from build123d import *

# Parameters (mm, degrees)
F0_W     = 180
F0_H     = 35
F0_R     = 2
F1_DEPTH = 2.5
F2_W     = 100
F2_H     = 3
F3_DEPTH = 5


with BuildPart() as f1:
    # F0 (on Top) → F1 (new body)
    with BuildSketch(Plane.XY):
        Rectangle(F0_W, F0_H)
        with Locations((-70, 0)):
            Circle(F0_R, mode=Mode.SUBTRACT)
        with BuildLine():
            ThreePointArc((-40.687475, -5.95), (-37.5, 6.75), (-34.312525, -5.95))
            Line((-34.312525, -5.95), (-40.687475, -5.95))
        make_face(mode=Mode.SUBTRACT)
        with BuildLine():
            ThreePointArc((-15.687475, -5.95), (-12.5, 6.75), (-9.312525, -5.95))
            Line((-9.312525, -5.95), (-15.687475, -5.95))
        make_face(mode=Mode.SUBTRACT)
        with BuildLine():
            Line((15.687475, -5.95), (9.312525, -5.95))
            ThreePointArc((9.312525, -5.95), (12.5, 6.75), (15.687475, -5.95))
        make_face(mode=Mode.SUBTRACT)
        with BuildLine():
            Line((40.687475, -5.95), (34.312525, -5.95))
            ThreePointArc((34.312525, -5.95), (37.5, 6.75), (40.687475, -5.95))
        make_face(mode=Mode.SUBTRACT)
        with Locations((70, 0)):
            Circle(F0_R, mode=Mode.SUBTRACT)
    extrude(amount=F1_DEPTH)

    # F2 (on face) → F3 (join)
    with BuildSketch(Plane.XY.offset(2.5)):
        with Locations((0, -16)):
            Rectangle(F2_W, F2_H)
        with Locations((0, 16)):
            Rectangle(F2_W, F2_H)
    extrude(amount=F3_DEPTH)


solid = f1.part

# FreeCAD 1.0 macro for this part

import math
import FreeCAD as App
import Part
import Sketcher

V = App.Vector

doc = App.newDocument("Part")
body = doc.addObject("PartDesign::Body", "Body")

# Sketch on XY plane
sketch1 = body.newObject("Sketcher::SketchObject", "Sketch")
sketch1.AttachmentSupport = (doc.getObject("XY_Plane"), [""])
sketch1.MapMode = "FlatFace"
sketch1.addGeometry([
    Part.LineSegment(V(-90, 17.5, 0), V(-90, -17.5, 0)),  # 0
    Part.LineSegment(V(-90, -17.5, 0), V(90, -17.5, 0)),  # 1
    Part.LineSegment(V(90, -17.5, 0), V(90, 17.5, 0)),  # 2
    Part.LineSegment(V(90, 17.5, 0), V(-90, 17.5, 0)),  # 3
    Part.Circle(V(-70, 0, 0), V(0, 0, 1), 2),  # 4
    Part.LineSegment(V(-34.312525, -5.95, 0), V(-40.687475, -5.95, 0)),  # 5
    Part.ArcOfCircle(Part.Circle(V(-37.5, 0, 0), V(0, 0, 1), 6.75), math.radians(-61.821597), math.radians(241.821597)),  # 6
    Part.ArcOfCircle(Part.Circle(V(37.5, 0, 0), V(0, 0, 1), 6.75), math.radians(-61.821597), math.radians(241.821597)),  # 7
    Part.LineSegment(V(40.687475, -5.95, 0), V(34.312525, -5.95, 0)),  # 8
    Part.Circle(V(70, 0, 0), V(0, 0, 1), 2),  # 9
    Part.LineSegment(V(-9.312525, -5.95, 0), V(-15.687475, -5.95, 0)),  # 10
    Part.ArcOfCircle(Part.Circle(V(-12.5, 0, 0), V(0, 0, 1), 6.75), math.radians(-61.821597), math.radians(241.821597)),  # 11
    Part.ArcOfCircle(Part.Circle(V(12.5, 0, 0), V(0, 0, 1), 6.75), math.radians(-61.821597), math.radians(241.821597)),  # 12
    Part.LineSegment(V(15.687475, -5.95, 0), V(9.312525, -5.95, 0)),  # 13
], False)
sketch1.addConstraint([
    Sketcher.Constraint("Coincident", 0, 2, 1, 1),
    Sketcher.Constraint("Coincident", 1, 2, 2, 1),
    Sketcher.Constraint("Coincident", 2, 2, 3, 1),
    Sketcher.Constraint("Coincident", 3, 2, 0, 1),
    Sketcher.Constraint("Coincident", 5, 1, 6, 1),
    Sketcher.Constraint("Coincident", 6, 2, 5, 2),
    Sketcher.Constraint("Coincident", 7, 1, 8, 1),
    Sketcher.Constraint("Coincident", 8, 2, 7, 2),
    Sketcher.Constraint("Coincident", 10, 1, 11, 1),
    Sketcher.Constraint("Coincident", 11, 2, 10, 2),
    Sketcher.Constraint("Coincident", 12, 1, 13, 1),
    Sketcher.Constraint("Coincident", 13, 2, 12, 2),
    Sketcher.Constraint("Vertical", 0),
    Sketcher.Constraint("Horizontal", 1),
    Sketcher.Constraint("Vertical", 2),
    Sketcher.Constraint("Horizontal", 3),
    Sketcher.Constraint("Horizontal", 5),
    Sketcher.Constraint("Horizontal", 8),
    Sketcher.Constraint("Horizontal", 10),
    Sketcher.Constraint("Horizontal", 13),
    Sketcher.Constraint("Equal", 6, 7),
    Sketcher.Constraint("Equal", 4, 9),
    Sketcher.Constraint("Equal", 7, 11),
    Sketcher.Constraint("Equal", 11, 12),
    Sketcher.Constraint("Symmetric", 6, 3, 7, 3, -1, 1),
    Sketcher.Constraint("Symmetric", 4, 3, 9, 3, -1, 1),
    Sketcher.Constraint("Symmetric", 11, 3, 12, 3, -1, 1),
    Sketcher.Constraint("Symmetric", 0, 2, 2, 2, -1, 1),
    Sketcher.Constraint("Symmetric", 6, 2, 7, 1, -2),
    Sketcher.Constraint("Symmetric", 11, 2, 12, 1, -2),
    Sketcher.Constraint("PointOnObject", 4, 3, -1),
    Sketcher.Constraint("Horizontal", 8, 2, 10, 1),
    Sketcher.Constraint("Diameter", 4, 4.0),
    Sketcher.Constraint("DistanceX", 1, 1, 1, 2, 180.0),
    Sketcher.Constraint("DistanceY", 0, 2, 0, 1, 35.0),
    Sketcher.Constraint("Radius", 6, 6.75),
    Sketcher.Constraint("DistanceX", 4, 3, -1, 1, 70.0),
    Sketcher.Constraint("DistanceX", 6, 3, 7, 3, 75.0),
    Sketcher.Constraint("DistanceX", 6, 3, 11, 3, 25.0),
    Sketcher.Constraint("DistanceY", 5, 1, -1, 1, 5.95),
])
pad1 = body.newObject("PartDesign::Pad", "Pad")
pad1.Profile = sketch1
pad1.Length = 2.5

# Sketch on XY plane
sketch2 = body.newObject("Sketcher::SketchObject", "Sketch001")
sketch2.AttachmentSupport = (doc.getObject("XY_Plane"), [""])
sketch2.MapMode = "FlatFace"
sketch2.AttachmentOffset = App.Placement(V(0, 0, 2.5), App.Rotation())
sketch2.addGeometry([
    Part.LineSegment(V(-50, -14.5, 0), V(-50, -17.5, 0)),  # 0
    Part.LineSegment(V(-50, -17.5, 0), V(50, -17.5, 0)),  # 1
    Part.LineSegment(V(50, -17.5, 0), V(50, -14.5, 0)),  # 2
    Part.LineSegment(V(50, -14.5, 0), V(-50, -14.5, 0)),  # 3
    Part.LineSegment(V(-50, 17.5, 0), V(-50, 14.5, 0)),  # 4
    Part.LineSegment(V(-50, 14.5, 0), V(50, 14.5, 0)),  # 5
    Part.LineSegment(V(50, 14.5, 0), V(50, 17.5, 0)),  # 6
    Part.LineSegment(V(50, 17.5, 0), V(-50, 17.5, 0)),  # 7
], False)
sketch2.addConstraint([
    Sketcher.Constraint("Coincident", 0, 2, 1, 1),
    Sketcher.Constraint("Coincident", 1, 2, 2, 1),
    Sketcher.Constraint("Coincident", 2, 2, 3, 1),
    Sketcher.Constraint("Coincident", 3, 2, 0, 1),
    Sketcher.Constraint("Coincident", 4, 2, 5, 1),
    Sketcher.Constraint("Coincident", 5, 2, 6, 1),
    Sketcher.Constraint("Coincident", 6, 2, 7, 1),
    Sketcher.Constraint("Coincident", 7, 2, 4, 1),
    Sketcher.Constraint("Vertical", 0),
    Sketcher.Constraint("Horizontal", 1),
    Sketcher.Constraint("Vertical", 2),
    Sketcher.Constraint("Horizontal", 3),
    Sketcher.Constraint("Vertical", 4),
    Sketcher.Constraint("Horizontal", 5),
    Sketcher.Constraint("Vertical", 6),
    Sketcher.Constraint("Horizontal", 7),
    Sketcher.Constraint("Symmetric", 2, 2, 4, 2, -1, 1),
    Sketcher.Constraint("Symmetric", 0, 2, 6, 2, -1, 1),
    Sketcher.Constraint("Vertical", 3, 2, 4, 2),
    Sketcher.Constraint("DistanceX", 1, 1, 1, 2, 100.0),
    Sketcher.Constraint("DistanceY", 0, 2, 0, 1, 3.0),
    Sketcher.Constraint("DistanceY", 3, 2, 4, 2, 29.0),
])
pad2 = body.newObject("PartDesign::Pad", "Pad001")
pad2.Profile = sketch2
pad2.Length = 5

doc.recompute()
